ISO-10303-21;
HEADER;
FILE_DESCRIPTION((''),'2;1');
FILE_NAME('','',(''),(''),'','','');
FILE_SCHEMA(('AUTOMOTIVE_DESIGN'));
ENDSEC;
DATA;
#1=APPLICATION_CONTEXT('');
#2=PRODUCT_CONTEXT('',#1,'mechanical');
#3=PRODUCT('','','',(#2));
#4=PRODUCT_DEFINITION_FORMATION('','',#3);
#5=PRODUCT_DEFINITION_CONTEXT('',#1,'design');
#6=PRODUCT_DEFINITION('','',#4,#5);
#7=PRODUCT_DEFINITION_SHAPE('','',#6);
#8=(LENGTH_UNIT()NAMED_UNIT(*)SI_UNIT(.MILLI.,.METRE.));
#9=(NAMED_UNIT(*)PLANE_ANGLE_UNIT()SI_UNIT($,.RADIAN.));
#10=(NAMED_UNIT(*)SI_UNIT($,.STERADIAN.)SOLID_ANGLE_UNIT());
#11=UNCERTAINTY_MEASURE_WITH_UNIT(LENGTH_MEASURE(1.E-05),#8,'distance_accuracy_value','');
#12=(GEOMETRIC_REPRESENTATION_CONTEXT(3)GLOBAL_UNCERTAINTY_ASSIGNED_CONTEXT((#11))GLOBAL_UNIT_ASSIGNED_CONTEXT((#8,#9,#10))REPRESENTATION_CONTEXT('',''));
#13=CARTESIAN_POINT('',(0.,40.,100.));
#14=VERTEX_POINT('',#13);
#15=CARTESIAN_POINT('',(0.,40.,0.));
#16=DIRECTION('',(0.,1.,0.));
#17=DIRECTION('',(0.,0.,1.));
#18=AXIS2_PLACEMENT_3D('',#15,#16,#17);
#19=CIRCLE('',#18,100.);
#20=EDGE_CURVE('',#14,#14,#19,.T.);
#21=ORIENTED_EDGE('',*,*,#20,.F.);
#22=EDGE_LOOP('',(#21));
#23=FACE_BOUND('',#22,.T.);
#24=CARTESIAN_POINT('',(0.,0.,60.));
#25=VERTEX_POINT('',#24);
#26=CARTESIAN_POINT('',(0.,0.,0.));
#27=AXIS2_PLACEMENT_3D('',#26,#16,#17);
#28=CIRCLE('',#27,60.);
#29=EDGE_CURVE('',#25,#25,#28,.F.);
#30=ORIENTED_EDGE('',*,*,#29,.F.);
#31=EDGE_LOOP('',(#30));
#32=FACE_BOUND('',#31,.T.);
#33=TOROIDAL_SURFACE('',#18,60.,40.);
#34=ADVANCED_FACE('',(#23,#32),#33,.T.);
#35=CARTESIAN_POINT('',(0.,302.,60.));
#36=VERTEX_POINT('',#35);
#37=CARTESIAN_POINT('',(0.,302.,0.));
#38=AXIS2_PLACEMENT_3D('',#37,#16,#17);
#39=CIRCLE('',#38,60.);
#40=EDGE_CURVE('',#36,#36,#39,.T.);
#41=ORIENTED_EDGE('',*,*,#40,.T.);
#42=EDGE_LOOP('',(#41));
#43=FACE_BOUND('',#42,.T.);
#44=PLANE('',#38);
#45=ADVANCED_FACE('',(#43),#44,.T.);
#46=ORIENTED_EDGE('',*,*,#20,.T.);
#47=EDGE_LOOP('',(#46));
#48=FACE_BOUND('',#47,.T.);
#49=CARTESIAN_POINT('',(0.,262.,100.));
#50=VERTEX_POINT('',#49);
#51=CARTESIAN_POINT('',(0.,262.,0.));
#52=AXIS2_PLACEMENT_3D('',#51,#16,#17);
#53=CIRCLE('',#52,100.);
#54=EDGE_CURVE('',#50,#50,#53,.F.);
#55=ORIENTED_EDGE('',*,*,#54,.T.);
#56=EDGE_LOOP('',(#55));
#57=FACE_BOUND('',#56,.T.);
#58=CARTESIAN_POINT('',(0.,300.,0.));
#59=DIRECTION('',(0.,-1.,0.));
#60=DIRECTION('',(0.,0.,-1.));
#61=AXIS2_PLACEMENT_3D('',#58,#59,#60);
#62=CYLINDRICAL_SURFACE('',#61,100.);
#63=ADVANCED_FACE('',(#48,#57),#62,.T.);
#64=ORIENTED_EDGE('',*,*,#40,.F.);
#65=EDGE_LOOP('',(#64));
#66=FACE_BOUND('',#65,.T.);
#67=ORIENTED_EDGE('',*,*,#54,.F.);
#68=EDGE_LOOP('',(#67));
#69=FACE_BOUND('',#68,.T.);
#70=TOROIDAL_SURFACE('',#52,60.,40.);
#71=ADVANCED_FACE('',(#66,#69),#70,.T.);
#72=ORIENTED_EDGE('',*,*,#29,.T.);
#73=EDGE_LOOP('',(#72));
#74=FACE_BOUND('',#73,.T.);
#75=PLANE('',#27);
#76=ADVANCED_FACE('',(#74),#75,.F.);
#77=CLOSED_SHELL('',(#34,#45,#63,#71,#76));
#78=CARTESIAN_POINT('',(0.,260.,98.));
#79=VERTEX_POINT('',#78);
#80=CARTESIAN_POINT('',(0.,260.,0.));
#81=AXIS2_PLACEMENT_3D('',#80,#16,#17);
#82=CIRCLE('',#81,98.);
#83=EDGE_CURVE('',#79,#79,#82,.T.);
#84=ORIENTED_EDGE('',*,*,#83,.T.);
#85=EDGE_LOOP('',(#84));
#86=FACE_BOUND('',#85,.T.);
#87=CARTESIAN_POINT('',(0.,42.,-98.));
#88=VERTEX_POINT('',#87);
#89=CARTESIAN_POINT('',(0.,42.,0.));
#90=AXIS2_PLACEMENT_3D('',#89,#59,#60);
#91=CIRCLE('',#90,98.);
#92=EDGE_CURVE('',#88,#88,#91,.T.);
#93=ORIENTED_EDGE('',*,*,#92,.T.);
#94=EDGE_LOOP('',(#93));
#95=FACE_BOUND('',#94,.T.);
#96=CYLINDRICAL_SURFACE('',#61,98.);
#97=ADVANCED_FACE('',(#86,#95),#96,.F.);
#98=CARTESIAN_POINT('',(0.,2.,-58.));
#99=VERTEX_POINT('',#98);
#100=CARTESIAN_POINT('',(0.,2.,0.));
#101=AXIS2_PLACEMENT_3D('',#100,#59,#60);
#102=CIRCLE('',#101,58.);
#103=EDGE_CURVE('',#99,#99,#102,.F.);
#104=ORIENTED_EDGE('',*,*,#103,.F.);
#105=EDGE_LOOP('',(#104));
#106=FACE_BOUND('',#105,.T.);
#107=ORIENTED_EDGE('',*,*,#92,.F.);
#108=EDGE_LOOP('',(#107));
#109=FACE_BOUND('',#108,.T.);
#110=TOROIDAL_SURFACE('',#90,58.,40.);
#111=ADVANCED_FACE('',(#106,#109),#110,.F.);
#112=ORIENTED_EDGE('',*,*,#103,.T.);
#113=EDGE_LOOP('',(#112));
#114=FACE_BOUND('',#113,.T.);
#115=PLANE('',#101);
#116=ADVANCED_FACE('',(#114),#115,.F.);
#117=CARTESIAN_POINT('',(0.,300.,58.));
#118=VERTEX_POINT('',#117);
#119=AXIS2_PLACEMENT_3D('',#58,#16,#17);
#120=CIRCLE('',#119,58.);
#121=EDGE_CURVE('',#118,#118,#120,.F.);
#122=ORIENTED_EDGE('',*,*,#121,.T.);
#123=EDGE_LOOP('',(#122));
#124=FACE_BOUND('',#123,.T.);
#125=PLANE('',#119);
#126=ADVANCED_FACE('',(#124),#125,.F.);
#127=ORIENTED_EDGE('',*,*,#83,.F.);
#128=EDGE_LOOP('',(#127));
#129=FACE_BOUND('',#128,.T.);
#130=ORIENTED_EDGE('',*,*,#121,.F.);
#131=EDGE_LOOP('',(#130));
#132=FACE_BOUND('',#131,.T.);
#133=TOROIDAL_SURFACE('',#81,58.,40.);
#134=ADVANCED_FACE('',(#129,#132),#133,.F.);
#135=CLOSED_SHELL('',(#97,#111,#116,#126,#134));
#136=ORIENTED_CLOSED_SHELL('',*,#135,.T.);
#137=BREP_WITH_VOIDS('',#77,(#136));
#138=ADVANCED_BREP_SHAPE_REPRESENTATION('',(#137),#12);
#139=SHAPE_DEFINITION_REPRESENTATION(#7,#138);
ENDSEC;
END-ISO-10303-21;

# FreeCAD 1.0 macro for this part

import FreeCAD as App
import Part
import Sketcher


def edges_at(feature, points):
    """Names of the edges that pass closest to the given points."""
    edges = feature.Shape.Edges
    near = lambda p: min(range(len(edges)), key=lambda i: edges[i].distToShape(Part.Vertex(*p))[0])
    return sorted({f"Edge{near(p) + 1}" for p in points})

doc = App.newDocument("Part")
params = doc.addObject("Spreadsheet::Sheet", "Params")
for row, (alias, value) in enumerate([
    ("sketch1_diameter", "200 mm"),
    ("sketch1_diameter2", "196 mm"),
    ("pad1_length", "300 mm"),
    ("sketch2_diameter", "200 mm"),
    ("pad2_length", "2 mm"),
    ("sketch3_diameter", "200 mm"),
    ("pad3_length", "2 mm"),
    ("fillet_radius", "40 mm"),
], start=1):
    params.set(f"A{row}", alias)
    params.set(f"B{row}", "=" + value)
    params.setAlias(f"B{row}", alias)

body = doc.addObject("PartDesign::Body", "Body")

sketch1 = body.newObject("Sketcher::SketchObject", "Sketch")
sketch1.AttachmentSupport = (doc.getObject("XZ_Plane"), [""])
sketch1.MapMode = "FlatFace"
sketch1.addGeometry(Part.Circle(App.Vector(0, 0, 0), App.Vector(0, 0, 1), 100), False)
sketch1.addGeometry(Part.Circle(App.Vector(0, 0, 0), App.Vector(0, 0, 1), 98), False)
sketch1.addConstraint(Sketcher.Constraint("Coincident", 0, 3, -1, 1))
sketch1.addConstraint(Sketcher.Constraint("Coincident", 1, 3, -1, 1))
sketch1.addConstraint(Sketcher.Constraint("Diameter", 0, 200.0))
sketch1.addConstraint(Sketcher.Constraint("Diameter", 1, 196.0))
sketch1.setExpression("Constraints[2]", "Params.sketch1_diameter")
sketch1.setExpression("Constraints[3]", "Params.sketch1_diameter2")
pad1 = body.newObject("PartDesign::Pad", "Pad")
pad1.Profile = sketch1
pad1.setExpression("Length", "Params.pad1_length")
pad1.Reversed = True

sketch2 = body.newObject("Sketcher::SketchObject", "Sketch001")
sketch2.AttachmentSupport = (doc.getObject("XZ_Plane"), [""])
sketch2.MapMode = "FlatFace"
sketch2.addGeometry(Part.Circle(App.Vector(0, 0, 0), App.Vector(0, 0, 1), 100), False)
sketch2.addConstraint(Sketcher.Constraint("Coincident", 0, 3, -1, 1))
sketch2.addConstraint(Sketcher.Constraint("Diameter", 0, 200.0))
sketch2.setExpression("Constraints[1]", "Params.sketch2_diameter")
pad2 = body.newObject("PartDesign::Pad", "Pad001")
pad2.Profile = sketch2
pad2.setExpression("Length", "Params.pad2_length")
pad2.Reversed = True

sketch3 = body.newObject("Sketcher::SketchObject", "Sketch002")
sketch3.AttachmentSupport = (doc.getObject("XZ_Plane"), [""])
sketch3.MapMode = "FlatFace"
sketch3.AttachmentOffset = App.Placement(App.Vector(0, 0, -300), App.Rotation())
sketch3.addGeometry(Part.Circle(App.Vector(0, 0, 0), App.Vector(0, 0, 1), 100), False)
sketch3.addConstraint(Sketcher.Constraint("Coincident", 0, 3, -1, 1))
sketch3.addConstraint(Sketcher.Constraint("Diameter", 0, 200.0))
sketch3.setExpression("Constraints[1]", "Params.sketch3_diameter")
pad3 = body.newObject("PartDesign::Pad", "Pad002")
pad3.Profile = sketch3
pad3.setExpression("Length", "Params.pad3_length")
pad3.Reversed = True
doc.recompute()

fillet = body.newObject("PartDesign::Fillet", "Fillet")
fillet.Base = (pad3, edges_at(pad3, [
    (0, 2, -98),
    (0, 300, -98),
    (0, 302, -100),
    (0, 0, -100),
]))
fillet.setExpression("Radius", "Params.fillet_radius")

doc.recompute()
